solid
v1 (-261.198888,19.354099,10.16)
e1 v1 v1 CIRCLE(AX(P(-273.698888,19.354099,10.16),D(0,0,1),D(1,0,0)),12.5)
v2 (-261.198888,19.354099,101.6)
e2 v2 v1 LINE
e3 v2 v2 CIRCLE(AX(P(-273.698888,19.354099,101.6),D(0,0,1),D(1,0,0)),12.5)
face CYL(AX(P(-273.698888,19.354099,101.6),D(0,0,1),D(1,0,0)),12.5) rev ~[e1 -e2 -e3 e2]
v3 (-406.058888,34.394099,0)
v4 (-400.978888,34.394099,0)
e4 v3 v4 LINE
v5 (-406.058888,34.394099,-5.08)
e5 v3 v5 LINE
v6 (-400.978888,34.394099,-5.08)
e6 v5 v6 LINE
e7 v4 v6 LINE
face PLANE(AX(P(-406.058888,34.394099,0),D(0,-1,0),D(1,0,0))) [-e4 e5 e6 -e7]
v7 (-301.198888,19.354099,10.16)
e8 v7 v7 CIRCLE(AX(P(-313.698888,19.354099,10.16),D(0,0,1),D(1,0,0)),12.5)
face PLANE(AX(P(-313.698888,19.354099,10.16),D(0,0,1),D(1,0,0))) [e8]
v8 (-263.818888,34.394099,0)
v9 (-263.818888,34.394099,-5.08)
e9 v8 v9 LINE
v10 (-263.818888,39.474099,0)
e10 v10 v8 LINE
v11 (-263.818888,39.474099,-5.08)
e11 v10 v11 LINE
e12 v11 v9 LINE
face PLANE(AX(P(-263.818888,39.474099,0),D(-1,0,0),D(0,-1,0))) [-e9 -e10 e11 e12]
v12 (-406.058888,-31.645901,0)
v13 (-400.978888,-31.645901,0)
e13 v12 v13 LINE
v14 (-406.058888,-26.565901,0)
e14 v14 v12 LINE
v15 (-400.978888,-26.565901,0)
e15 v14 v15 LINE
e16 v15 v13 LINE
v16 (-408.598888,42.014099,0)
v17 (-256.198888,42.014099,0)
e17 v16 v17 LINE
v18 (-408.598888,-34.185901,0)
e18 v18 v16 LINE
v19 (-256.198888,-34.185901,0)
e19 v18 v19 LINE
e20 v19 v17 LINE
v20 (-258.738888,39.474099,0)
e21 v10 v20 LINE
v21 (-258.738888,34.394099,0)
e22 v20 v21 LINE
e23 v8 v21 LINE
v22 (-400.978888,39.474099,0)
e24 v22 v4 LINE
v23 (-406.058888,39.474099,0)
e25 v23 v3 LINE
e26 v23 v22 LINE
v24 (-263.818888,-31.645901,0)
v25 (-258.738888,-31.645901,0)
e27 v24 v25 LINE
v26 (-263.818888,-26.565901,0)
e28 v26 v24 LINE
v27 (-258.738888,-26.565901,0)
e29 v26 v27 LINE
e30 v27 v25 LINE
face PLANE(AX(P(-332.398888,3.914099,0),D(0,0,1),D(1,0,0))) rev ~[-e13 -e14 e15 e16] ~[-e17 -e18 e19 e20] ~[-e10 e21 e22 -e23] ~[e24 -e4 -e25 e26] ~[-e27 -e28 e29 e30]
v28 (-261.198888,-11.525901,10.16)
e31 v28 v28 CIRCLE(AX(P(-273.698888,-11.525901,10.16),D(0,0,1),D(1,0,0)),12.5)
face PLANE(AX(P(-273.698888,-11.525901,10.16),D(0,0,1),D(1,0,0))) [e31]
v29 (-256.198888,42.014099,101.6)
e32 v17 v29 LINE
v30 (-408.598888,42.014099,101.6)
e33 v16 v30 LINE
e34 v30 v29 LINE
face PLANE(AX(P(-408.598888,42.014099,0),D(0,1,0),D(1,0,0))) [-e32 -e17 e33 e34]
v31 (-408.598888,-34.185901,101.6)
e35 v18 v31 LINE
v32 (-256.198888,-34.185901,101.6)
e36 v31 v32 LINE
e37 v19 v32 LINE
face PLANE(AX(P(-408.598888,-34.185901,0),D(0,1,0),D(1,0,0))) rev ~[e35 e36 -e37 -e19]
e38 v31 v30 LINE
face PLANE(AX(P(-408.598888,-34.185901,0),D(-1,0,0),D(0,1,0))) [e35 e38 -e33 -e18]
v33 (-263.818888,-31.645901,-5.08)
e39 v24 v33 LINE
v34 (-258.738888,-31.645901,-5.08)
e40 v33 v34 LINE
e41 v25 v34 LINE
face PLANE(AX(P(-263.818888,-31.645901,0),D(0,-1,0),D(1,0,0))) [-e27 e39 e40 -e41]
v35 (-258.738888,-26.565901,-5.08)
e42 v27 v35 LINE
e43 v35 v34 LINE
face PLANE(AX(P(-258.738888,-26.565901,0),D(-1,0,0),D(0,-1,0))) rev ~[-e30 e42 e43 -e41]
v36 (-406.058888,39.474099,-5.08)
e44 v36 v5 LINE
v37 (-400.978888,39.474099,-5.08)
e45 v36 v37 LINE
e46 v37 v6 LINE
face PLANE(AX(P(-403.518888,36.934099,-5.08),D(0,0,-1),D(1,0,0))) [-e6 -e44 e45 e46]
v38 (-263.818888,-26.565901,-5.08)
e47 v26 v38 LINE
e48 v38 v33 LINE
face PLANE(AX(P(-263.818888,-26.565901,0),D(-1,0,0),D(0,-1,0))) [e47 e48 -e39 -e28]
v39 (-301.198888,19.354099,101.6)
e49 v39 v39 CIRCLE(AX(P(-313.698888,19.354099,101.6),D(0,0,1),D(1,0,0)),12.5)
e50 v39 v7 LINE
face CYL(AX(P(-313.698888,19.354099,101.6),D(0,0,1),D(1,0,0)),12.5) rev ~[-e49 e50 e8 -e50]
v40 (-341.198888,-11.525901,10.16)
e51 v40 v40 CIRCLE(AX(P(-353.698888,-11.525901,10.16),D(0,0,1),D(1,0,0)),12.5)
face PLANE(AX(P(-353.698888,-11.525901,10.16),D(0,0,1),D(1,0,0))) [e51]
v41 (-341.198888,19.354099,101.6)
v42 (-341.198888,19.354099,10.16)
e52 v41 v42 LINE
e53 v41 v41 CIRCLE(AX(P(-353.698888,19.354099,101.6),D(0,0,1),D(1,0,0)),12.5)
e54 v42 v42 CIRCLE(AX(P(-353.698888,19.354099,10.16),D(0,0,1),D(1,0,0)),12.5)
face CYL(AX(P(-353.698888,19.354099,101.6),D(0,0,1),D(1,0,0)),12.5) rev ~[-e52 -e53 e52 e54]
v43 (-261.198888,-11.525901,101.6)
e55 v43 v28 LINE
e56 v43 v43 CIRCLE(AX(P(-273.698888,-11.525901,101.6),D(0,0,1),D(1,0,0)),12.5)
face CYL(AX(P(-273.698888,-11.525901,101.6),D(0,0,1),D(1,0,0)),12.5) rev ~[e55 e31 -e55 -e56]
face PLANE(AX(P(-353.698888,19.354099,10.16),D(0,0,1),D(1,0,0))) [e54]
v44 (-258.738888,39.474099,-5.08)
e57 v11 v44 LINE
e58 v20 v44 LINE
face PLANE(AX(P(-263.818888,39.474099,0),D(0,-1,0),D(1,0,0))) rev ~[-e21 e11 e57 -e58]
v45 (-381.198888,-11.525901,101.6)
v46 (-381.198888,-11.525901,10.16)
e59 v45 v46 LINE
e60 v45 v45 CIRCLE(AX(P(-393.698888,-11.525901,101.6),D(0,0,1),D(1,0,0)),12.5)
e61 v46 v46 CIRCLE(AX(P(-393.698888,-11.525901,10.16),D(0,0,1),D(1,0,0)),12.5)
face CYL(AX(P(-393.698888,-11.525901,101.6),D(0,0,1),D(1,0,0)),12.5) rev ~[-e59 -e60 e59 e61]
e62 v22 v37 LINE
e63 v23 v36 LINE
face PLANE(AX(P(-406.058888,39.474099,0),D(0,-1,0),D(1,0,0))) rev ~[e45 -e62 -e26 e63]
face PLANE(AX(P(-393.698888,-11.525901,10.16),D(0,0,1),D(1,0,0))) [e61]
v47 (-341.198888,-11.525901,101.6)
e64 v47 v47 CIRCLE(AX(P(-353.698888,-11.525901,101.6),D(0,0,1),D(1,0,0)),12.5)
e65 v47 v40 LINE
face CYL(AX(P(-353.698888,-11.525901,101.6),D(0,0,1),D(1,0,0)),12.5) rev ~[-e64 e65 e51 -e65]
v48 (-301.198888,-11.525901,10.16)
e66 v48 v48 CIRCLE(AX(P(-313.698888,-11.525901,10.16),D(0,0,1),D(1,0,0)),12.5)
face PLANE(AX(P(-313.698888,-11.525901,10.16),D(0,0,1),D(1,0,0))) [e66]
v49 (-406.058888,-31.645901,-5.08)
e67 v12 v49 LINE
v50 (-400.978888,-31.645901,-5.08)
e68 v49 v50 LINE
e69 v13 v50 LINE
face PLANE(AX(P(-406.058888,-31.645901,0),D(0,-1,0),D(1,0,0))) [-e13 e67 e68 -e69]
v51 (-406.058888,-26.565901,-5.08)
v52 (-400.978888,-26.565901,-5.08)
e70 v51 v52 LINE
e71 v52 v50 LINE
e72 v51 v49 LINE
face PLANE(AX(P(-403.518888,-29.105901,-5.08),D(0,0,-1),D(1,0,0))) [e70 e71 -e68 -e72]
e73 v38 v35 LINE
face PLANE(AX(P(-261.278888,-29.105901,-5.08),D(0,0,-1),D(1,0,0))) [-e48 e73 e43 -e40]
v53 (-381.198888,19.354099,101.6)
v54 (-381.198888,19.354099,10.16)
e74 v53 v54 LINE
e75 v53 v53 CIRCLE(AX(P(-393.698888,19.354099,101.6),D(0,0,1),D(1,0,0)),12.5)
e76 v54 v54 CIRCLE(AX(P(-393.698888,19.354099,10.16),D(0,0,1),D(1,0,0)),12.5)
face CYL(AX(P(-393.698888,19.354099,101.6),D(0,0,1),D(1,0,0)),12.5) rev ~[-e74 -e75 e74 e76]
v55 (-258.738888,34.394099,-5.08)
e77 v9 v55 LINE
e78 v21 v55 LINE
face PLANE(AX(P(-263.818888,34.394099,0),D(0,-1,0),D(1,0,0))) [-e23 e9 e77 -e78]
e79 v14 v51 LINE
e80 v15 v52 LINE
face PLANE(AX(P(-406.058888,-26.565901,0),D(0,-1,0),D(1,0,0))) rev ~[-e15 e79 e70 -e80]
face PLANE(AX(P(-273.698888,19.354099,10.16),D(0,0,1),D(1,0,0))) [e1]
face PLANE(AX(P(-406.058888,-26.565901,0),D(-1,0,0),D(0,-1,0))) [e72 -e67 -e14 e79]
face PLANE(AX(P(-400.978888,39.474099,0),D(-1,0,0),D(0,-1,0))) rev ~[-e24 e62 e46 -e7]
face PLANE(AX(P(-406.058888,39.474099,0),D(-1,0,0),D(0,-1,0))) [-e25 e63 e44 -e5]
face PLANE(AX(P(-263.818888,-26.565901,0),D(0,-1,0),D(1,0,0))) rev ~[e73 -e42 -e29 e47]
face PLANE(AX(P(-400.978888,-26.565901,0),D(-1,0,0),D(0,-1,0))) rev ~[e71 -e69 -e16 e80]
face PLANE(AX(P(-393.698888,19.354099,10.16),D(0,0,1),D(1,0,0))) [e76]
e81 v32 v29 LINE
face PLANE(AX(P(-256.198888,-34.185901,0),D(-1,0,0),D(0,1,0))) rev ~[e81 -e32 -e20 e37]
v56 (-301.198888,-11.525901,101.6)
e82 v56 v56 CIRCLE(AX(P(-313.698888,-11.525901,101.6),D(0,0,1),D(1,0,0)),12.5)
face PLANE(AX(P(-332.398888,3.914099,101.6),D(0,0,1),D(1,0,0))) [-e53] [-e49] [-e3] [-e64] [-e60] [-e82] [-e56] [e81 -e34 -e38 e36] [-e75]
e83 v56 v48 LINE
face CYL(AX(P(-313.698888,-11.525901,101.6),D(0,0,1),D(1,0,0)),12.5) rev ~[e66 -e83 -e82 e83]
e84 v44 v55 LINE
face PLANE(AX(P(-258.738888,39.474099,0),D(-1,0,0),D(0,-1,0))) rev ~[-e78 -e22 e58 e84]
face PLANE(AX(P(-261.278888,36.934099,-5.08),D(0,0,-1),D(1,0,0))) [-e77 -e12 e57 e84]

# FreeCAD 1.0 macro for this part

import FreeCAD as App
import Part
import Sketcher
from FreeCAD import Vector
Q = App.Units.Quantity

doc = App.newDocument("Part")
params = doc.addObject("Spreadsheet::Sheet", "Params")
for row, (alias, value) in enumerate([
    ("sketch1_width", "6 in"),
    ("sketch1_height", "3 in"),
    ("pad1_length", "4 in"),
    ("pocket1_length", "3.6 in"),
    ("sketch3_width", "0.2 in"),
    ("pad2_length", "0.2 in"),
], start=1):
    params.set(f"A{row}", alias)
    params.set(f"B{row}", "=" + value)
    params.setAlias(f"B{row}", alias)

body = doc.addObject("PartDesign::Body", "Body")

# Sketch on XY plane
sketch1 = body.newObject("Sketcher::SketchObject", "Sketch")
sketch1.AttachmentSupport = (doc.getObject("XY_Plane"), [""])
sketch1.MapMode = "FlatFace"
sketch1.addGeometry([
    Part.LineSegment(Vector(-409, 42, 0), Vector(-409, -34, 0)),
    Part.LineSegment(Vector(-409, -34, 0), Vector(-256, -34, 0)),
    Part.LineSegment(Vector(-256, -34, 0), Vector(-256, 42, 0)),
    Part.LineSegment(Vector(-256, 42, 0), Vector(-409, 42, 0)),
], False)
sketch1.addConstraint([
    Sketcher.Constraint("Coincident", 0, 2, 1, 1),
    Sketcher.Constraint("Coincident", 1, 2, 2, 1),
    Sketcher.Constraint("Coincident", 2, 2, 3, 1),
    Sketcher.Constraint("Coincident", 3, 2, 0, 1),
    Sketcher.Constraint("Vertical", 0),
    Sketcher.Constraint("Horizontal", 1),
    Sketcher.Constraint("Vertical", 2),
    Sketcher.Constraint("Horizontal", 3),
    Sketcher.Constraint("DistanceX", 1, 1, 1, 2, Q("6 in")),
    Sketcher.Constraint("DistanceY", 0, 2, 0, 1, Q("3 in")),
    Sketcher.Constraint("DistanceY", 0, 2, -1, 1, Q("34.185901 mm")),
    Sketcher.Constraint("DistanceX", 0, 2, -1, 1, Q("408.598888 mm")),
])
sketch1.setExpression("Constraints[8]", "Params.sketch1_width")
sketch1.setExpression("Constraints[9]", "Params.sketch1_height")
pad1 = body.newObject("PartDesign::Pad", "Pad")
pad1.Profile = sketch1
pad1.setExpression("Length", "Params.pad1_length")

# Sketch on XY plane
sketch2 = body.newObject("Sketcher::SketchObject", "Sketch001")
sketch2.AttachmentSupport = (doc.getObject("XY_Plane"), [""])
sketch2.MapMode = "FlatFace"
sketch2.AttachmentOffset = App.Placement(Vector(0, 0, 4 * 25.4), App.Rotation())
sketch2.addGeometry([
    Part.Circle(Vector(-394, 19, 0), Vector(0, 0, 1), 12),  # 0
    Part.Circle(Vector(-354, 19, 0), Vector(0, 0, 1), 12),  # 1
    Part.Circle(Vector(-314, 19, 0), Vector(0, 0, 1), 12),  # 2
    Part.Circle(Vector(-274, -12, 0), Vector(0, 0, 1), 12),  # 3
    Part.Circle(Vector(-314, -12, 0), Vector(0, 0, 1), 12),  # 4
    Part.Circle(Vector(-354, -12, 0), Vector(0, 0, 1), 12),  # 5
    Part.Circle(Vector(-394, -12, 0), Vector(0, 0, 1), 12),  # 6
    Part.Circle(Vector(-274, 19, 0), Vector(0, 0, 1), 12),  # 7
], False)
sketch2.addConstraint([
    Sketcher.Constraint("Equal", 0, 1),
    Sketcher.Constraint("Equal", 1, 2),
    Sketcher.Constraint("Equal", 2, 3),
    Sketcher.Constraint("Equal", 3, 4),
    Sketcher.Constraint("Equal", 4, 5),
    Sketcher.Constraint("Equal", 5, 6),
    Sketcher.Constraint("Equal", 6, 7),
    Sketcher.Constraint("Horizontal", 0, 3, 1, 3),
    Sketcher.Constraint("Horizontal", 1, 3, 2, 3),
    Sketcher.Constraint("Horizontal", 3, 3, 4, 3),
    Sketcher.Constraint("Horizontal", 4, 3, 5, 3),
    Sketcher.Constraint("Horizontal", 5, 3, 6, 3),
    Sketcher.Constraint("Horizontal", 2, 3, 7, 3),
    Sketcher.Constraint("Vertical", 2, 3, 4, 3),
    Sketcher.Constraint("Vertical", 1, 3, 5, 3),
    Sketcher.Constraint("Vertical", 0, 3, 6, 3),
    Sketcher.Constraint("Vertical", 3, 3, 7, 3),
    Sketcher.Constraint("Diameter", 0, Q("25 mm")),
    Sketcher.Constraint("DistanceY", -1, 1, 0, 3, Q("19.354099 mm")),
    Sketcher.Constraint("DistanceY", 3, 3, -1, 1, Q("11.525901 mm")),
    Sketcher.Constraint("DistanceX", 0, 3, 1, 3, Q("40 mm")),
    Sketcher.Constraint("DistanceX", 1, 3, 2, 3, Q("40 mm")),
    Sketcher.Constraint("DistanceX", 2, 3, 3, 3, Q("40 mm")),
    Sketcher.Constraint("DistanceX", 0, 3, -1, 1, Q("393.698888 mm")),
])
pocket1 = body.newObject("PartDesign::Pocket", "Pocket")
pocket1.Profile = sketch2
pocket1.setExpression("Length", "Params.pocket1_length")

# Sketch on XY plane
sketch3 = body.newObject("Sketcher::SketchObject", "Sketch002")
sketch3.AttachmentSupport = (doc.getObject("XY_Plane"), [""])
sketch3.MapMode = "FlatFace"
sketch3.addGeometry([
    Part.LineSegment(Vector(-406, -32, 0), Vector(-406, -27, 0)),  # 0
    Part.LineSegment(Vector(-406, -27, 0), Vector(-401, -27, 0)),  # 1
    Part.LineSegment(Vector(-401, -27, 0), Vector(-401, -32, 0)),  # 2
    Part.LineSegment(Vector(-401, -32, 0), Vector(-406, -32, 0)),  # 3
    Part.LineSegment(Vector(-406, 34, 0), Vector(-406, 39, 0)),  # 4
    Part.LineSegment(Vector(-406, 39, 0), Vector(-401, 39, 0)),  # 5
    Part.LineSegment(Vector(-401, 39, 0), Vector(-401, 34, 0)),  # 6
    Part.LineSegment(Vector(-401, 34, 0), Vector(-406, 34, 0)),  # 7
    Part.LineSegment(Vector(-264, 34, 0), Vector(-264, 39, 0)),  # 8
    Part.LineSegment(Vector(-264, 39, 0), Vector(-259, 39, 0)),  # 9
    Part.LineSegment(Vector(-259, 39, 0), Vector(-259, 34, 0)),  # 10
    Part.LineSegment(Vector(-259, 34, 0), Vector(-264, 34, 0)),  # 11
    Part.LineSegment(Vector(-264, -32, 0), Vector(-264, -27, 0)),  # 12
    Part.LineSegment(Vector(-264, -27, 0), Vector(-259, -27, 0)),  # 13
    Part.LineSegment(Vector(-259, -27, 0), Vector(-259, -32, 0)),  # 14
    Part.LineSegment(Vector(-259, -32, 0), Vector(-264, -32, 0)),  # 15
], False)
sketch3.addConstraint([
    Sketcher.Constraint("Coincident", 0, 2, 1, 1),
    Sketcher.Constraint("Coincident", 1, 2, 2, 1),
    Sketcher.Constraint("Coincident", 2, 2, 3, 1),
    Sketcher.Constraint("Coincident", 3, 2, 0, 1),
    Sketcher.Constraint("Coincident", 4, 2, 5, 1),
    Sketcher.Constraint("Coincident", 5, 2, 6, 1),
    Sketcher.Constraint("Coincident", 6, 2, 7, 1),
    Sketcher.Constraint("Coincident", 7, 2, 4, 1),
    Sketcher.Constraint("Coincident", 8, 2, 9, 1),
    Sketcher.Constraint("Coincident", 9, 2, 10, 1),
    Sketcher.Constraint("Coincident", 10, 2, 11, 1),
    Sketcher.Constraint("Coincident", 11, 2, 8, 1),
    Sketcher.Constraint("Coincident", 12, 2, 13, 1),
    Sketcher.Constraint("Coincident", 13, 2, 14, 1),
    Sketcher.Constraint("Coincident", 14, 2, 15, 1),
    Sketcher.Constraint("Coincident", 15, 2, 12, 1),
    Sketcher.Constraint("Vertical", 0),
    Sketcher.Constraint("Horizontal", 1),
    Sketcher.Constraint("Vertical", 2),
    Sketcher.Constraint("Horizontal", 3),
    Sketcher.Constraint("Vertical", 4),
    Sketcher.Constraint("Horizontal", 5),
    Sketcher.Constraint("Vertical", 6),
    Sketcher.Constraint("Horizontal", 7),
    Sketcher.Constraint("Vertical", 8),
    Sketcher.Constraint("Horizontal", 9),
    Sketcher.Constraint("Vertical", 10),
    Sketcher.Constraint("Horizontal", 11),
    Sketcher.Constraint("Vertical", 12),
    Sketcher.Constraint("Horizontal", 13),
    Sketcher.Constraint("Vertical", 14),
    Sketcher.Constraint("Horizontal", 15),
    Sketcher.Constraint("Horizontal", 5, 2, 8, 2),
    Sketcher.Constraint("Horizontal", 7, 2, 10, 2),
    Sketcher.Constraint("Horizontal", 1, 2, 12, 2),
    Sketcher.Constraint("Horizontal", 3, 2, 14, 2),
    Sketcher.Constraint("Vertical", 3, 2, 4, 2),
    Sketcher.Constraint("Vertical", 2, 2, 5, 2),
    Sketcher.Constraint("Vertical", 11, 2, 12, 2),
    Sketcher.Constraint("Vertical", 10, 2, 13, 2),
    Sketcher.Constraint("Equal", 7, 9),
    Sketcher.Constraint("Equal", 15, 0),
    Sketcher.Constraint("Equal", 2, 4),
    Sketcher.Constraint("DistanceX", 1, 1, 1, 2, Q("0.2 in")),
    Sketcher.Constraint("DistanceY", 0, 2, 4, 2, Q("2.6 in")),
    Sketcher.Constraint("DistanceX", 5, 2, 8, 2, Q("5.4 in")),
    Sketcher.Constraint("DistanceY", 0, 2, -1, 1, Q("26.565901 mm")),
    Sketcher.Constraint("DistanceX", 0, 2, -1, 1, Q("406.058888 mm")),
])
sketch3.setExpression("Constraints[43]", "Params.sketch3_width")
pad2 = body.newObject("PartDesign::Pad", "Pad001")
pad2.Profile = sketch3
pad2.setExpression("Length", "Params.pad2_length")
pad2.Reversed = True

doc.recompute()
